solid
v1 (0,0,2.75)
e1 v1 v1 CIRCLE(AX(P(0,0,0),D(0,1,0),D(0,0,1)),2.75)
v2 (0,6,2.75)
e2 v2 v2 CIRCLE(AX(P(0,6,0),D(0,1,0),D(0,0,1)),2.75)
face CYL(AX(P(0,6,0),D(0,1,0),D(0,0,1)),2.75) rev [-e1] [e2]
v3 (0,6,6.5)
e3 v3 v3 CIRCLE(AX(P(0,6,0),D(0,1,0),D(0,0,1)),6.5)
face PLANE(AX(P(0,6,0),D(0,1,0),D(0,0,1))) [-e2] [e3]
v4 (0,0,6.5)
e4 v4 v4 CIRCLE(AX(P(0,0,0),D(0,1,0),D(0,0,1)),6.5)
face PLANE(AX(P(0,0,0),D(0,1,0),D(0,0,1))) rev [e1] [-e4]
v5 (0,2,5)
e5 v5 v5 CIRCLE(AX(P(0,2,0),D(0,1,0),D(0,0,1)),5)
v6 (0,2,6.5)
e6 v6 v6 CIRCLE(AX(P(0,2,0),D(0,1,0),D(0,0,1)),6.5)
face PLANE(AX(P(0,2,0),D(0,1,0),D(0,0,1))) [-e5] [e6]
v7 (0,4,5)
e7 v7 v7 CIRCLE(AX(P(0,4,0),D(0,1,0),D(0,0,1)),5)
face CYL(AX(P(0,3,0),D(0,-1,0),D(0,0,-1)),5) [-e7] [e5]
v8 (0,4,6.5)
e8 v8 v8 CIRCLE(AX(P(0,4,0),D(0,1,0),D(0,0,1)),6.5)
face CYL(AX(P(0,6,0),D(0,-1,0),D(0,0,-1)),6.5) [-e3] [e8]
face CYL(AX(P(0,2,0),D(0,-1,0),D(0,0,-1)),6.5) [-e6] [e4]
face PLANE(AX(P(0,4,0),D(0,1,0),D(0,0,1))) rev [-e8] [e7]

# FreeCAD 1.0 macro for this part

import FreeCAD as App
import Part
import Sketcher
from FreeCAD import Vector
Q = App.Units.Quantity

doc = App.newDocument("Part")
body = doc.addObject("PartDesign::Body", "Body")

# Sketch on XZ plane
sketch1 = body.newObject("Sketcher::SketchObject", "Sketch")
sketch1.AttachmentSupport = (doc.getObject("XZ_Plane"), [""])
sketch1.MapMode = "FlatFace"
sketch1.addGeometry(Part.Circle(Vector(0, 0, 0), Vector(0, 0, 1), 6.5), False)
sketch1.addConstraint([
    Sketcher.Constraint("Coincident", 0, 3, -1, 1),
    Sketcher.Constraint("Diameter", 0, Q("13 mm")),
])
pad1 = body.newObject("PartDesign::Pad", "Pad")
pad1.Profile = sketch1
pad1.Length = 2
pad1.Reversed = True

# Sketch on XZ plane
sketch2 = body.newObject("Sketcher::SketchObject", "Sketch001")
sketch2.AttachmentSupport = (doc.getObject("XZ_Plane"), [""])
sketch2.MapMode = "FlatFace"
sketch2.AttachmentOffset = App.Placement(Vector(0, 0, -2), App.Rotation())
sketch2.addGeometry(Part.Circle(Vector(0, 0, 0), Vector(0, 0, 1), 5), False)
sketch2.addConstraint([
    Sketcher.Constraint("Coincident", 0, 3, -1, 1),
    Sketcher.Constraint("Diameter", 0, Q("10 mm")),
])
pad2 = body.newObject("PartDesign::Pad", "Pad001")
pad2.Profile = sketch2
pad2.Length = 1
pad2.Reversed = True
doc.recompute()

datumplane = body.newObject("PartDesign::Plane", "DatumPlane")
datumplane.AttachmentSupport = (doc.getObject("XZ_Plane"), [""])
datumplane.MapMode = "FlatFace"
datumplane.AttachmentOffset = App.Placement(Vector(0, 0, -3), App.Rotation())
mirrored = body.newObject("PartDesign::Mirrored", "Mirrored")
mirrored.Originals = [pad2]
mirrored.MirrorPlane = (datumplane, [""])
body.Tip = mirrored

# Sketch on XZ plane
sketch3 = body.newObject("Sketcher::SketchObject", "Sketch002")
sketch3.AttachmentSupport = (doc.getObject("XZ_Plane"), [""])
sketch3.MapMode = "FlatFace"
sketch3.AttachmentOffset = App.Placement(Vector(0, 0, -4), App.Rotation())
sketch3.addGeometry(Part.Circle(Vector(0, 0, 0), Vector(0, 0, 1), 6.5), False)
sketch3.addConstraint([
    Sketcher.Constraint("Coincident", 0, 3, -1, 1),
    Sketcher.Constraint("Diameter", 0, Q("13 mm")),
])
pad3 = body.newObject("PartDesign::Pad", "Pad002")
pad3.Profile = sketch3
pad3.Length = 2
pad3.Reversed = True

# Sketch on XZ plane
sketch4 = body.newObject("Sketcher::SketchObject", "Sketch003")
sketch4.AttachmentSupport = (doc.getObject("XZ_Plane"), [""])
sketch4.MapMode = "FlatFace"
sketch4.AttachmentOffset = App.Placement(Vector(0, 0, -6), App.Rotation())
sketch4.addGeometry(Part.Circle(Vector(0, 0, 0), Vector(0, 0, 1), 2.75), False)
sketch4.addConstraint([
    Sketcher.Constraint("Coincident", 0, 3, -1, 1),
    Sketcher.Constraint("Diameter", 0, Q("5.5 mm")),
])
doc.recompute()
hole = body.newObject("PartDesign::Hole", "Hole")
hole.Profile = sketch4
hole.ThreadType = "None"
hole.Diameter = 5.5
hole.DepthType = "ThroughAll"
hole.Reversed = True

doc.recompute()
